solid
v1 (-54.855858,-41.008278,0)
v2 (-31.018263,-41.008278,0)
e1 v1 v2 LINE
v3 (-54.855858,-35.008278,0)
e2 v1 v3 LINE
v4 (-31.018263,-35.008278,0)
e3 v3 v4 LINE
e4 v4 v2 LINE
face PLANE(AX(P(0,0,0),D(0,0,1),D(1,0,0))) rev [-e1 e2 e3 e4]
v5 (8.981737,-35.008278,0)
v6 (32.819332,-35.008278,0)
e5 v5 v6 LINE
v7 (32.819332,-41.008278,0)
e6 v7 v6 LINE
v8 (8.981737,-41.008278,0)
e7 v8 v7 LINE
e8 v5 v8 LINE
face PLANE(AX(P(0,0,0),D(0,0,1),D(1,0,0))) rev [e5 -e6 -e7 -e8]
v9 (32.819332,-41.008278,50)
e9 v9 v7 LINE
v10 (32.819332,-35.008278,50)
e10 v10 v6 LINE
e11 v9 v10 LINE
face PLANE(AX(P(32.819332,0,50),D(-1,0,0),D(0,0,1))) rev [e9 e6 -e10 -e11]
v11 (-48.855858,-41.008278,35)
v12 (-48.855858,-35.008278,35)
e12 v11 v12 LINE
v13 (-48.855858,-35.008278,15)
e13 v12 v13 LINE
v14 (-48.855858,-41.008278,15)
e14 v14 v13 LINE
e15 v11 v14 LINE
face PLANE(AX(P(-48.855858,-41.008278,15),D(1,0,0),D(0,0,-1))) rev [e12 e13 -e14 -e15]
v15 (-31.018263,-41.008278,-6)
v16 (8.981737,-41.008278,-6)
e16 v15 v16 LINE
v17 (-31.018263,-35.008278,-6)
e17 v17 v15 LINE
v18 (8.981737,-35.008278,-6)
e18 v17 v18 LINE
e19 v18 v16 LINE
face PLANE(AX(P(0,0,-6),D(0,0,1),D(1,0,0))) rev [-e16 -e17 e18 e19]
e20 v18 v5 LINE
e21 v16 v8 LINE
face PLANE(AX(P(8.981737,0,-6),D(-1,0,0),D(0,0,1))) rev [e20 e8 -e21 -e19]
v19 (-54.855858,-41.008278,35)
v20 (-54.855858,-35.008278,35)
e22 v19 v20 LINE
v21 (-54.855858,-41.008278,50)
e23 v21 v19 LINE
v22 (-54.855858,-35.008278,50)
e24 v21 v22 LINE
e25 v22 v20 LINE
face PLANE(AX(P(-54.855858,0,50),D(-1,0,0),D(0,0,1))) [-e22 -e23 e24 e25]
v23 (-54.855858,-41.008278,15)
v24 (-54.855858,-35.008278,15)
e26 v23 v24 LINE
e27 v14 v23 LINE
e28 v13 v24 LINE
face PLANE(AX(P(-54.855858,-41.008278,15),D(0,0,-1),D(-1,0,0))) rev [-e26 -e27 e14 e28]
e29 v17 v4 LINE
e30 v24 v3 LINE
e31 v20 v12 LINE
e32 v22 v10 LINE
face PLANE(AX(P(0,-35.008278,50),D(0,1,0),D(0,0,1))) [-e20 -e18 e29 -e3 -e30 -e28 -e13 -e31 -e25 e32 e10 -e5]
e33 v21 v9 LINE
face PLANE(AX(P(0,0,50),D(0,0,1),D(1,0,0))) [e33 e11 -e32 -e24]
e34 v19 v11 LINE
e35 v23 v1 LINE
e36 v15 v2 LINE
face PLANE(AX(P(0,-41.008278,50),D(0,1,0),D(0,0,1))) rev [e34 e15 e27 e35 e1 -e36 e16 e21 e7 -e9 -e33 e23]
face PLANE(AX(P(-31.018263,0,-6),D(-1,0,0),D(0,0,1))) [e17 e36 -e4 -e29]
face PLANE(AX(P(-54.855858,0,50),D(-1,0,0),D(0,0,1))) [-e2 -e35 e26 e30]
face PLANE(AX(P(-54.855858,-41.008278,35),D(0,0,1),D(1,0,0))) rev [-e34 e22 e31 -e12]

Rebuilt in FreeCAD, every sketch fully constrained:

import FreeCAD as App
import Part
import Sketcher


def add_polygon(sketch, points):
    """Adds a closed chain of lines whose ends are joined by coincident constraints."""
    first, n = sketch.GeometryCount, len(points)
    for a, b in zip(points, points[1:] + points[:1]):
        sketch.addGeometry(Part.LineSegment(App.Vector(*a, 0), App.Vector(*b, 0)), False)
    for i in range(n):
        sketch.addConstraint(Sketcher.Constraint("Coincident", first + i, 2, first + (i + 1) % n, 1))

doc = App.newDocument("Part")
params = doc.addObject("Spreadsheet::Sheet", "Params")
for row, (alias, value) in enumerate([
    ("sketch1_height", "6 mm"),
    ("pad1_length", "50 mm"),
    ("sketch2_width", "40 mm"),
    ("sketch2_height", "6 mm"),
    ("pad2_length", "6 mm"),
    ("sketch3_width", "6 mm"),
    ("sketch3_height", "20 mm"),
    ("pocket1_length", "6 mm"),
], start=1):
    params.set(f"A{row}", alias)
    params.set(f"B{row}", "=" + value)
    params.setAlias(f"B{row}", alias)

body = doc.addObject("PartDesign::Body", "Body")

# Sketch on XY plane
sketch1 = doc.addObject("Sketcher::SketchObject", "Sketch")
body.addObject(sketch1)
sketch1.AttachmentSupport = (doc.XY_Plane, [""])
sketch1.MapMode = "FlatFace"
add_polygon(sketch1, [(-55, -35), (-55, -41), (33, -41), (33, -35)])  # lines 0-3
sketch1.addConstraint([
    Sketcher.Constraint("Vertical", 0),
    Sketcher.Constraint("Horizontal", 1),
    Sketcher.Constraint("Vertical", 2),
    Sketcher.Constraint("Horizontal", 3),
    Sketcher.Constraint("DistanceY", 0, 2, 0, 1, 6.0),
    Sketcher.Constraint("DistanceX", 1, 1, 1, 2, 87.67519),
    Sketcher.Constraint("DistanceX", 0, 2, -1, 1, 54.855858),
    Sketcher.Constraint("DistanceY", 0, 2, -1, 1, 41.008278),
])
sketch1.setExpression("Constraints[8]", "Params.sketch1_height")
pad1 = doc.addObject("PartDesign::Pad", "Pad")
body.addObject(pad1)
pad1.Profile = sketch1
pad1.setExpression("Length", "Params.pad1_length")

# Sketch on XY plane
sketch2 = doc.addObject("Sketcher::SketchObject", "Sketch001")
body.addObject(sketch2)
sketch2.AttachmentSupport = (doc.XY_Plane, [""])
sketch2.MapMode = "FlatFace"
add_polygon(sketch2, [(-31, -35), (-31, -41), (9, -41), (9, -35)])  # lines 0-3
sketch2.addConstraint([
    Sketcher.Constraint("Vertical", 0),
    Sketcher.Constraint("Horizontal", 1),
    Sketcher.Constraint("Vertical", 2),
    Sketcher.Constraint("Horizontal", 3),
    Sketcher.Constraint("DistanceX", 1, 1, 1, 2, 40.0),
    Sketcher.Constraint("DistanceY", 0, 2, 0, 1, 6.0),
    Sketcher.Constraint("DistanceY", 0, 2, -1, 1, 41.008278),
    Sketcher.Constraint("DistanceX", 0, 2, -1, 1, 31.018263),
])
sketch2.setExpression("Constraints[8]", "Params.sketch2_width")
sketch2.setExpression("Constraints[9]", "Params.sketch2_height")
pad2 = doc.addObject("PartDesign::Pad", "Pad001")
body.addObject(pad2)
pad2.Profile = sketch2
pad2.setExpression("Length", "Params.pad2_length")
pad2.Reversed = True

# Sketch on XZ plane
sketch3 = doc.addObject("Sketcher::SketchObject", "Sketch002")
body.addObject(sketch3)
sketch3.AttachmentSupport = (doc.XZ_Plane, [""])
sketch3.MapMode = "FlatFace"
sketch3.AttachmentOffset = App.Placement(App.Vector(0, 0, 35.008278), App.Rotation())
add_polygon(sketch3, [(-55, 15), (-55, 35), (-49, 35), (-49, 15)])  # lines 0-3
sketch3.addConstraint([
    Sketcher.Constraint("Vertical", 0),
    Sketcher.Constraint("Horizontal", 1),
    Sketcher.Constraint("Vertical", 2),
    Sketcher.Constraint("Horizontal", 3),
    Sketcher.Constraint("DistanceX", 1, 1, 1, 2, 6.0),
    Sketcher.Constraint("DistanceY", 0, 1, 0, 2, 20.0),
    Sketcher.Constraint("DistanceY", -1, 1, 0, 2, 35.0),
    Sketcher.Constraint("DistanceX", 0, 2, -1, 1, 54.855858),
])
sketch3.setExpression("Constraints[8]", "Params.sketch3_width")
sketch3.setExpression("Constraints[9]", "Params.sketch3_height")
pocket1 = doc.addObject("PartDesign::Pocket", "Pocket")
body.addObject(pocket1)
pocket1.Profile = sketch3
pocket1.setExpression("Length", "Params.pocket1_length")
pocket1.Reversed = True

doc.recompute()
